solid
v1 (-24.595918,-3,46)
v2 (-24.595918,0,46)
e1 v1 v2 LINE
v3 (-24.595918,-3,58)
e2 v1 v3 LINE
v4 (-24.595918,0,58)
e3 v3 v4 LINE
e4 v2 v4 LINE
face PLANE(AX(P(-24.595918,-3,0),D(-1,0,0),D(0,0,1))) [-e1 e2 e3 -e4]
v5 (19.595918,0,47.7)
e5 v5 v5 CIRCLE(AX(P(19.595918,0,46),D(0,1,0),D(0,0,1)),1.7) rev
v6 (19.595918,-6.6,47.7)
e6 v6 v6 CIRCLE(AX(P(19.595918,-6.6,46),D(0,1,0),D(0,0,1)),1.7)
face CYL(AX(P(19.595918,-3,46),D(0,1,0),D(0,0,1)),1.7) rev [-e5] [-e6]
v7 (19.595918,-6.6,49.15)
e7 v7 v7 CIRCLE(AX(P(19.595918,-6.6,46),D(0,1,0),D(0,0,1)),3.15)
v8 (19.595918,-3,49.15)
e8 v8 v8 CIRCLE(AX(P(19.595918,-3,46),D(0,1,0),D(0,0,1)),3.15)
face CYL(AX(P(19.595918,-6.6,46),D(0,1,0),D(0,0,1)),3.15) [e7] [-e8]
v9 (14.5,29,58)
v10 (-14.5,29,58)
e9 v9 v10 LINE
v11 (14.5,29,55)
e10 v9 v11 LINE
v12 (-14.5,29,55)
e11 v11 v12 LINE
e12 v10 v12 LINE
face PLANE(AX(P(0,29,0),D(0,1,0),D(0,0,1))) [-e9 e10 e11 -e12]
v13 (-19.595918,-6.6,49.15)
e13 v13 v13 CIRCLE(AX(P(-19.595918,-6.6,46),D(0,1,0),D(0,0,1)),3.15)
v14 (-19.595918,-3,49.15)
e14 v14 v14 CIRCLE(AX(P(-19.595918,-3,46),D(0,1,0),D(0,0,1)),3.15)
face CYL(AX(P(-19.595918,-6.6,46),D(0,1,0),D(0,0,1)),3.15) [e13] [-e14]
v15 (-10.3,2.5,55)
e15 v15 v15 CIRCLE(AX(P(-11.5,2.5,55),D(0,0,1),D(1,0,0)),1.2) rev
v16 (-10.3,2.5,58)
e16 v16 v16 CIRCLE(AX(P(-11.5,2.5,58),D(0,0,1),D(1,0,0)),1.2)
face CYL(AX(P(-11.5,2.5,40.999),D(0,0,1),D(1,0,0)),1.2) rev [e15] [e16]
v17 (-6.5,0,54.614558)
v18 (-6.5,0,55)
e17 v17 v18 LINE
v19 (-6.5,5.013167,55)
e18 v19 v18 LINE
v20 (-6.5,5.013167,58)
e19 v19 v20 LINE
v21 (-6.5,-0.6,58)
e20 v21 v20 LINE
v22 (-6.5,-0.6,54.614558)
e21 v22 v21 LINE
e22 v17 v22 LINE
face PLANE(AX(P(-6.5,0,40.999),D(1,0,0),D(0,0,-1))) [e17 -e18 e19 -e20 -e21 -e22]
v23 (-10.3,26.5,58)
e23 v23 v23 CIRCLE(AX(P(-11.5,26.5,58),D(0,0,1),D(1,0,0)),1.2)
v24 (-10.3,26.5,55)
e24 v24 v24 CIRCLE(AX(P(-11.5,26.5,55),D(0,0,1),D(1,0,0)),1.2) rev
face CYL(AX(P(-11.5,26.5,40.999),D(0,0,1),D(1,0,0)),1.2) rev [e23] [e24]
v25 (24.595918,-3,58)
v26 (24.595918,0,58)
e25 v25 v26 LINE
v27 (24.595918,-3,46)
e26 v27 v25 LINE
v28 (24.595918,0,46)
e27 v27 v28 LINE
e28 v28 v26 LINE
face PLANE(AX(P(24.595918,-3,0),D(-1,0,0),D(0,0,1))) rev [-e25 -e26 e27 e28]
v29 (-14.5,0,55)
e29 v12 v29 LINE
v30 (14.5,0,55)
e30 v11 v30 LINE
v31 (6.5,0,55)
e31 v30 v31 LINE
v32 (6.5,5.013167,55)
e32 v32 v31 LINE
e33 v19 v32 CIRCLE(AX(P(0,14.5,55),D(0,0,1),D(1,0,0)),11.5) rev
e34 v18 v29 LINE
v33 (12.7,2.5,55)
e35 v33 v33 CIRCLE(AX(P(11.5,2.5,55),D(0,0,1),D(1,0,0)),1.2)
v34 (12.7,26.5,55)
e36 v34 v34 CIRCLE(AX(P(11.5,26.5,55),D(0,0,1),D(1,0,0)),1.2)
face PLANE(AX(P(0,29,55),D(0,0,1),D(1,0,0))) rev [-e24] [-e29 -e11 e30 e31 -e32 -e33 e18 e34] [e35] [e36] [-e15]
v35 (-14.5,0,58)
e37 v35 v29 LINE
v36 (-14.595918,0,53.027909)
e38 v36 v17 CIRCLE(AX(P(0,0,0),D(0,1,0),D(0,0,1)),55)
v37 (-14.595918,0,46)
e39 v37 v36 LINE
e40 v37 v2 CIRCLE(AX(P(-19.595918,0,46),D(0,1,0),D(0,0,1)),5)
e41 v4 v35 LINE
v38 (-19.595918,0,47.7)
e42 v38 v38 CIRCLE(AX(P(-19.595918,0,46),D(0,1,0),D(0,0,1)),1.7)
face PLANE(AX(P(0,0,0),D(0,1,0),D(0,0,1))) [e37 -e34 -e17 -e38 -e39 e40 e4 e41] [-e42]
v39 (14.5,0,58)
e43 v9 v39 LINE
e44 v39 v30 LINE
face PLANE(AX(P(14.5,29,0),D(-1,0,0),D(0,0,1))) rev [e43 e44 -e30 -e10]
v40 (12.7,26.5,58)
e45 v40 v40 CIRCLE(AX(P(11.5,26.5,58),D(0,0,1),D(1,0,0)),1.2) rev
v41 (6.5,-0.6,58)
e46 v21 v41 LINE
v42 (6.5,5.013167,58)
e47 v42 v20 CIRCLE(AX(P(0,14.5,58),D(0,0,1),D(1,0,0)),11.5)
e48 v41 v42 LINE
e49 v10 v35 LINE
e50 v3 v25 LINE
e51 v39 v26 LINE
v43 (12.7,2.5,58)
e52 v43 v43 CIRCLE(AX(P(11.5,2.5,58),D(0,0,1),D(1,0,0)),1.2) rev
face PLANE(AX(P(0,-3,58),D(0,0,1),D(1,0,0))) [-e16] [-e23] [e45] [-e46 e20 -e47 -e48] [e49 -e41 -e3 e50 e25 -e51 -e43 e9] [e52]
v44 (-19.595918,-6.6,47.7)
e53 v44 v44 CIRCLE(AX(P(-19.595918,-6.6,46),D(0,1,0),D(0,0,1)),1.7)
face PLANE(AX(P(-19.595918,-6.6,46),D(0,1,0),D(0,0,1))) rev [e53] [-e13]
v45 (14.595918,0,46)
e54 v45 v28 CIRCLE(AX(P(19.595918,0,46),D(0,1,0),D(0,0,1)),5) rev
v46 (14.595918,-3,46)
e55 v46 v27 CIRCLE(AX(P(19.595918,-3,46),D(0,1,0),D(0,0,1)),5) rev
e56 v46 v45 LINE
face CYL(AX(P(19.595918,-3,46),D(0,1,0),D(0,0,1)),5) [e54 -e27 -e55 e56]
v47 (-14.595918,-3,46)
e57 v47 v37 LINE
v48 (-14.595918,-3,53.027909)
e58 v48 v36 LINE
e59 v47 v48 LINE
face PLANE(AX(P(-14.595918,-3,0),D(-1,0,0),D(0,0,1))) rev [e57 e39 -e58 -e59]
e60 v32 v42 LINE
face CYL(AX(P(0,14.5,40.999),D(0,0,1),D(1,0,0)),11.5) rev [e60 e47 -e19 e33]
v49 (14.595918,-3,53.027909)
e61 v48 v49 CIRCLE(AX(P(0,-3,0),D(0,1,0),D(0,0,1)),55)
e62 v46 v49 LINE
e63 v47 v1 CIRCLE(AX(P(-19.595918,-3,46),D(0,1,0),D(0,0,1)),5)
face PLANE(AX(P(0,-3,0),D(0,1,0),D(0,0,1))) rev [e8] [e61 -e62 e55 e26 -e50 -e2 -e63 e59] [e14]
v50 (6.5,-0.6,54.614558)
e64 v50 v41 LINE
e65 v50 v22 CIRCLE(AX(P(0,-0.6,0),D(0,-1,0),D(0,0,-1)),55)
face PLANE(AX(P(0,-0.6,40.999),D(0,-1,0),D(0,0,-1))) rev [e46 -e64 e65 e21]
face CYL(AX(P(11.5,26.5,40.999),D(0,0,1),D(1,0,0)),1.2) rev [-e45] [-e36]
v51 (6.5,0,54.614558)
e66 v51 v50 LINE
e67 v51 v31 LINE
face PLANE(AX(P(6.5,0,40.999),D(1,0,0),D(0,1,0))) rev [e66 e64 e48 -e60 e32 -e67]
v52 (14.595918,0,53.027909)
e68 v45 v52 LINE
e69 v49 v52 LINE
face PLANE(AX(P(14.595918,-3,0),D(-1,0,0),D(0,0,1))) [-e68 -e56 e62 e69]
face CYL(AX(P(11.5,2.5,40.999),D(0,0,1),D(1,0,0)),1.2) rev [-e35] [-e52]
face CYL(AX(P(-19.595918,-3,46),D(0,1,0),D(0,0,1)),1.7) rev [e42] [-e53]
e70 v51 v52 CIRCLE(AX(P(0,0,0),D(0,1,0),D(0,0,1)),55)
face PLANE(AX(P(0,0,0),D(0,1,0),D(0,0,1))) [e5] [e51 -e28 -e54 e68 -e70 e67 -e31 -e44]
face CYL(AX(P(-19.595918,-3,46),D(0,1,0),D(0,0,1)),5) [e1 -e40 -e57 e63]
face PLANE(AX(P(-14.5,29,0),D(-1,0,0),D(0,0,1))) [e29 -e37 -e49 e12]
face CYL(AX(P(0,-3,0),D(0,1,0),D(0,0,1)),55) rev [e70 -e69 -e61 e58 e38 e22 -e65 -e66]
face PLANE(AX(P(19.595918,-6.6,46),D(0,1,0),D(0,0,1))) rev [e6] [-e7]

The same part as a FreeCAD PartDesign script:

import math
import FreeCAD as App
import Part
import Sketcher
Q = App.Units.Quantity


def add_polygon(sketch, points):
    """Adds a closed chain of lines whose ends are joined by coincident constraints."""
    first, n = sketch.GeometryCount, len(points)
    for a, b in zip(points, points[1:] + points[:1]):
        sketch.addGeometry(Part.LineSegment(App.Vector(*a, 0), App.Vector(*b, 0)), False)
    for i in range(n):
        sketch.addConstraint(Sketcher.Constraint("Coincident", first + i, 2, first + (i + 1) % n, 1))

doc = App.newDocument("Part")
body = doc.addObject("PartDesign::Body", "Body")

# Sketch on XZ plane
sketch1 = body.newObject("Sketcher::SketchObject", "Sketch")
sketch1.AttachmentSupport = (doc.getObject("XZ_Plane"), [""])
sketch1.MapMode = "FlatFace"
sketch1.addGeometry([
    Part.ArcOfCircle(Part.Circle(App.Vector(19.595918, 46, 0), App.Vector(0, 0, 1), 5), math.radians(180), math.radians(360)),  # 0
    Part.LineSegment(App.Vector(14.595918, 46, 0), App.Vector(14.595918, 53.027909, 0)),  # 1
    Part.ArcOfCircle(Part.Circle(App.Vector(0, 0, 0), App.Vector(0, 0, 1), 55), math.radians(74.610447), math.radians(105.389553)),  # 2
    Part.LineSegment(App.Vector(-14.595918, 53.027909, 0), App.Vector(-14.595918, 46, 0)),  # 3
    Part.ArcOfCircle(Part.Circle(App.Vector(-19.595918, 46, 0), App.Vector(0, 0, 1), 5), math.radians(180), math.radians(360)),  # 4
    Part.LineSegment(App.Vector(-24.595918, 46, 0), App.Vector(-24.595918, 58, 0)),  # 5
    Part.LineSegment(App.Vector(-24.595918, 58, 0), App.Vector(24.595918, 58, 0)),  # 6
    Part.LineSegment(App.Vector(24.595918, 58, 0), App.Vector(24.595918, 46, 0)),  # 7
    Part.Circle(App.Vector(-19.595918, 46, 0), App.Vector(0, 0, 1), 1.7),  # 8
    Part.Circle(App.Vector(19.595918, 46, 0), App.Vector(0, 0, 1), 1.7),  # 9
], False)
sketch1.addConstraint([
    Sketcher.Constraint("Tangent", 0, 1, 1, 1),
    Sketcher.Constraint("Coincident", 1, 2, 2, 1),
    Sketcher.Constraint("Coincident", 2, 2, 3, 1),
    Sketcher.Constraint("Tangent", 3, 2, 4, 2),
    Sketcher.Constraint("Tangent", 4, 1, 5, 1),
    Sketcher.Constraint("Coincident", 5, 2, 6, 1),
    Sketcher.Constraint("Coincident", 6, 2, 7, 1),
    Sketcher.Constraint("Tangent", 7, 2, 0, 2),
    Sketcher.Constraint("Vertical", 1),
    Sketcher.Constraint("Vertical", 3),
    Sketcher.Constraint("Vertical", 5),
    Sketcher.Constraint("Horizontal", 6),
    Sketcher.Constraint("Vertical", 7),
    Sketcher.Constraint("Coincident", 2, 3, -1, 1),
    Sketcher.Constraint("Coincident", 8, 3, 4, 3),
    Sketcher.Constraint("Coincident", 9, 3, 0, 3),
    Sketcher.Constraint("Equal", 0, 4),
    Sketcher.Constraint("Equal", 8, 9),
    Sketcher.Constraint("Symmetric", 0, 3, 4, 3, -2),
    Sketcher.Constraint("Radius", 0, Q("5 mm")),
    Sketcher.Constraint("Radius", 2, Q("55 mm")),
    Sketcher.Constraint("Diameter", 8, Q("3.4 mm")),
    Sketcher.Constraint("DistanceY", 5, 1, 5, 2, Q("12 mm")),
    Sketcher.Constraint("DistanceY", -1, 1, 0, 3, Q("46 mm")),
    Sketcher.Constraint("DistanceY", 1, 1, 1, 2, Q("7.027909 mm")),
])
pad1 = body.newObject("PartDesign::Pad", "Pad")
pad1.Profile = sketch1
pad1.Length = 3

# Sketch on XZ plane
sketch2 = body.newObject("Sketcher::SketchObject", "Sketch001")
sketch2.AttachmentSupport = (doc.getObject("XZ_Plane"), [""])
sketch2.MapMode = "FlatFace"
add_polygon(sketch2, [(-14.5, 55), (-14.5, 58), (14.5, 58), (14.5, 55)])  # lines 0-3
sketch2.addConstraint([
    Sketcher.Constraint("Vertical", 0),
    Sketcher.Constraint("Horizontal", 1),
    Sketcher.Constraint("Vertical", 2),
    Sketcher.Constraint("Horizontal", 3),
    Sketcher.Constraint("DistanceX", 1, 1, 1, 2, Q("29 mm")),
    Sketcher.Constraint("DistanceY", 0, 1, 0, 2, Q("3 mm")),
    Sketcher.Constraint("DistanceY", -1, 1, 0, 2, Q("58 mm")),
    Sketcher.Constraint("DistanceX", 0, 2, -1, 1, Q("14.5 mm")),
])
pad2 = body.newObject("PartDesign::Pad", "Pad001")
pad2.Profile = sketch2
pad2.Length = 29
pad2.Reversed = True

# Sketch on XY plane
sketch3 = body.newObject("Sketcher::SketchObject", "Sketch002")
sketch3.AttachmentSupport = (doc.getObject("XY_Plane"), [""])
sketch3.MapMode = "FlatFace"
sketch3.AttachmentOffset = App.Placement(App.Vector(0, 0, 58), App.Rotation())
sketch3.addGeometry([
    Part.LineSegment(App.Vector(-6.5, 5.013167, 0), App.Vector(-6.5, -0.6, 0)),
    Part.LineSegment(App.Vector(-6.5, -0.6, 0), App.Vector(6.5, -0.6, 0)),
    Part.LineSegment(App.Vector(6.5, -0.6, 0), App.Vector(6.5, 5.013167, 0)),
    Part.ArcOfCircle(Part.Circle(App.Vector(0, 14.5, 0), App.Vector(0, 0, 1), 11.5), math.radians(-55.582611), math.radians(235.582611)),
], False)
sketch3.addConstraint([
    Sketcher.Constraint("Coincident", 0, 2, 1, 1),
    Sketcher.Constraint("Coincident", 1, 2, 2, 1),
    Sketcher.Constraint("Coincident", 2, 2, 3, 1),
    Sketcher.Constraint("Coincident", 3, 2, 0, 1),
    Sketcher.Constraint("Vertical", 0),
    Sketcher.Constraint("Horizontal", 1),
    Sketcher.Constraint("Vertical", 2),
    Sketcher.Constraint("Symmetric", 2, 2, 3, 2, -2),
    Sketcher.Constraint("Radius", 3, Q("11.5 mm")),
    Sketcher.Constraint("DistanceX", 1, 1, 1, 2, Q("13 mm")),
    Sketcher.Constraint("DistanceY", -1, 1, 3, 3, Q("14.5 mm")),
    Sketcher.Constraint("DistanceY", 0, 2, -1, 1, Q("0.6 mm")),
])
pocket1 = body.newObject("PartDesign::Pocket", "Pocket")
pocket1.Profile = sketch3
pocket1.Length = 3.385442

# Sketch on XY plane
sketch4 = body.newObject("Sketcher::SketchObject", "Sketch003")
sketch4.AttachmentSupport = (doc.getObject("XY_Plane"), [""])
sketch4.MapMode = "FlatFace"
sketch4.AttachmentOffset = App.Placement(App.Vector(0, 0, 58), App.Rotation())
sketch4.addGeometry(Part.Circle(App.Vector(-11.5, 2.5, 0), App.Vector(0, 0, 1), 1.2), False)
sketch4.addConstraint([
    Sketcher.Constraint("Diameter", 0, Q("2.4 mm")),
    Sketcher.Constraint("DistanceX", 0, 3, -1, 1, Q("11.5 mm")),
    Sketcher.Constraint("DistanceY", -1, 1, 0, 3, Q("2.5 mm")),
])
pocket2 = body.newObject("PartDesign::Pocket", "Pocket001")
pocket2.Profile = sketch4
pocket2.Type = "UpToFirst"

# Sketch on XY plane
sketch5 = body.newObject("Sketcher::SketchObject", "Sketch004")
sketch5.AttachmentSupport = (doc.getObject("XY_Plane"), [""])
sketch5.MapMode = "FlatFace"
sketch5.AttachmentOffset = App.Placement(App.Vector(0, 0, 58), App.Rotation())
sketch5.addGeometry(Part.Circle(App.Vector(-11.5, 26.5, 0), App.Vector(0, 0, 1), 1.2), False)
sketch5.addConstraint([
    Sketcher.Constraint("Diameter", 0, Q("2.4 mm")),
    Sketcher.Constraint("DistanceX", 0, 3, -1, 1, Q("11.5 mm")),
    Sketcher.Constraint("DistanceY", -1, 1, 0, 3, Q("26.5 mm")),
])
pocket3 = body.newObject("PartDesign::Pocket", "Pocket002")
pocket3.Profile = sketch5
pocket3.Type = "UpToFirst"

# Sketch on XY plane
sketch6 = body.newObject("Sketcher::SketchObject", "Sketch005")
sketch6.AttachmentSupport = (doc.getObject("XY_Plane"), [""])
sketch6.MapMode = "FlatFace"
sketch6.AttachmentOffset = App.Placement(App.Vector(0, 0, 58), App.Rotation())
sketch6.addGeometry(Part.Circle(App.Vector(11.5, 2.5, 0), App.Vector(0, 0, 1), 1.2), False)
sketch6.addConstraint([
    Sketcher.Constraint("Diameter", 0, Q("2.4 mm")),
    Sketcher.Constraint("DistanceX", -1, 1, 0, 3, Q("11.5 mm")),
    Sketcher.Constraint("DistanceY", -1, 1, 0, 3, Q("2.5 mm")),
])
pocket4 = body.newObject("PartDesign::Pocket", "Pocket003")
pocket4.Profile = sketch6
pocket4.Type = "UpToFirst"

# Sketch on XY plane
sketch7 = body.newObject("Sketcher::SketchObject", "Sketch006")
sketch7.AttachmentSupport = (doc.getObject("XY_Plane"), [""])
sketch7.MapMode = "FlatFace"
sketch7.AttachmentOffset = App.Placement(App.Vector(0, 0, 58), App.Rotation())
sketch7.addGeometry(Part.Circle(App.Vector(11.5, 26.5, 0), App.Vector(0, 0, 1), 1.2), False)
sketch7.addConstraint([
    Sketcher.Constraint("Diameter", 0, Q("2.4 mm")),
    Sketcher.Constraint("DistanceX", -1, 1, 0, 3, Q("11.5 mm")),
    Sketcher.Constraint("DistanceY", -1, 1, 0, 3, Q("26.5 mm")),
])
pocket5 = body.newObject("PartDesign::Pocket", "Pocket004")
pocket5.Profile = sketch7
pocket5.Type = "UpToFirst"

# Sketch on XZ plane
sketch8 = body.newObject("Sketcher::SketchObject", "Sketch007")
sketch8.AttachmentSupport = (doc.getObject("XZ_Plane"), [""])
sketch8.MapMode = "FlatFace"
sketch8.AttachmentOffset = App.Placement(App.Vector(0, 0, 3), App.Rotation())
sketch8.addGeometry([
    Part.Circle(App.Vector(-19.595918, 46, 0), App.Vector(0, 0, 1), 3.15),
    Part.Circle(App.Vector(-19.595918, 46, 0), App.Vector(0, 0, 1), 1.7),
    Part.Circle(App.Vector(19.595918, 46, 0), App.Vector(0, 0, 1), 3.15),
    Part.Circle(App.Vector(19.595918, 46, 0), App.Vector(0, 0, 1), 1.7),
], False)
sketch8.addConstraint([
    Sketcher.Constraint("Coincident", 1, 3, 0, 3),
    Sketcher.Constraint("Coincident", 3, 3, 2, 3),
    Sketcher.Constraint("Equal", 0, 2),
    Sketcher.Constraint("Equal", 1, 3),
    Sketcher.Constraint("Symmetric", 0, 3, 2, 3, -2),
    Sketcher.Constraint("Diameter", 0, Q("6.3 mm")),
    Sketcher.Constraint("Diameter", 1, Q("3.4 mm")),
    Sketcher.Constraint("DistanceY", -1, 1, 0, 3, Q("46 mm")),
    Sketcher.Constraint("DistanceX", 0, 3, -1, 1, Q("19.595918 mm")),
])
pad3 = body.newObject("PartDesign::Pad", "Pad002")
pad3.Profile = sketch8
pad3.Length = 3.6

doc.recompute()
